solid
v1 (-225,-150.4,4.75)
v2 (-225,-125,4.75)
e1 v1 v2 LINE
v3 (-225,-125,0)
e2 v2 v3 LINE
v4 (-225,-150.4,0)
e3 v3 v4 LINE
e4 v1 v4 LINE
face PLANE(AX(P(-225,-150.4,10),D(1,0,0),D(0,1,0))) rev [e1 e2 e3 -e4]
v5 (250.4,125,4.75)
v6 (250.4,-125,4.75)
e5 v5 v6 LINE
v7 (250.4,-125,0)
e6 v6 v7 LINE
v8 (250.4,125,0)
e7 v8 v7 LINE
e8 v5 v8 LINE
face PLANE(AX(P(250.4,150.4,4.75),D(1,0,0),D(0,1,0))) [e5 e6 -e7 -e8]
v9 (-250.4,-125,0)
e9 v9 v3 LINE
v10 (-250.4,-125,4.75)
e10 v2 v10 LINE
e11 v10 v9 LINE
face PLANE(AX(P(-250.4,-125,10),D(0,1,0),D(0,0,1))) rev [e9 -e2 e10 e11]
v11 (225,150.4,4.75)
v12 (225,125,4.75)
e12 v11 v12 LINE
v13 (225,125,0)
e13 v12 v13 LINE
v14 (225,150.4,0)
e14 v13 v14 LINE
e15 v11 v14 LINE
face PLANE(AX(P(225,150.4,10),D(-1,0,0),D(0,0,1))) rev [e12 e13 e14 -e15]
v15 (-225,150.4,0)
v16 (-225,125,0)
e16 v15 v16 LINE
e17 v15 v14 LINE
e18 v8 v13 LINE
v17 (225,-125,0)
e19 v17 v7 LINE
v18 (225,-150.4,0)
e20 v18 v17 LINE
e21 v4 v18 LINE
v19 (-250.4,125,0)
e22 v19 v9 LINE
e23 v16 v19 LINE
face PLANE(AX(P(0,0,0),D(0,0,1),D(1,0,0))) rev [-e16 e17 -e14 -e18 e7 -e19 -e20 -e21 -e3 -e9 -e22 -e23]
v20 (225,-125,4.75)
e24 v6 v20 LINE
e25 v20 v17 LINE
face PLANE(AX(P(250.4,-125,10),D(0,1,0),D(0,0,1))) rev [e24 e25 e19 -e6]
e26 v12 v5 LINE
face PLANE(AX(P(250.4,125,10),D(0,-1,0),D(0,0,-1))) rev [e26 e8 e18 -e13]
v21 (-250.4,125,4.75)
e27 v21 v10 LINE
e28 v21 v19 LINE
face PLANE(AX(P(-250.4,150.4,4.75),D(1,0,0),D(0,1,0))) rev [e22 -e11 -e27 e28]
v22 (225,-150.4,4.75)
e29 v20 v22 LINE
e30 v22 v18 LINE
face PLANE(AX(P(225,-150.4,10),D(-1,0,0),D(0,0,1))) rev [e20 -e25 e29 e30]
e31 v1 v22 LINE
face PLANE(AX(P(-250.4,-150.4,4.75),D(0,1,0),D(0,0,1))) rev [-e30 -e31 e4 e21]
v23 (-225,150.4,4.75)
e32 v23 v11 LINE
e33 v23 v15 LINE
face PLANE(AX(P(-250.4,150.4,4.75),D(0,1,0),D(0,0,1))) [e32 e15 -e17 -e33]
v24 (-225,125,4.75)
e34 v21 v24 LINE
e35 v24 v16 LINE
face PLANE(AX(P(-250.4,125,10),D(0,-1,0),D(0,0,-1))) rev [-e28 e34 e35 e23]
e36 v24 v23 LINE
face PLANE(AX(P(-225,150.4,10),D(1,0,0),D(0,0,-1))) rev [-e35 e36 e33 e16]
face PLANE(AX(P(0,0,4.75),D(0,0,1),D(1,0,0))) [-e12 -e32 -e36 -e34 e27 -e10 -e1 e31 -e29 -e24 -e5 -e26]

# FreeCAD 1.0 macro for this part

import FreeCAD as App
import Part
import Sketcher

V = App.Vector


def add_polygon(sketch, points):
    """Adds a closed chain of lines whose ends are joined by coincident constraints."""
    first, n = sketch.GeometryCount, len(points)
    for a, b in zip(points, points[1:] + points[:1]):
        sketch.addGeometry(Part.LineSegment(App.Vector(*a, 0), App.Vector(*b, 0)), False)
    for i in range(n):
        sketch.addConstraint(Sketcher.Constraint("Coincident", first + i, 2, first + (i + 1) % n, 1))

doc = App.newDocument("Part")
body = doc.addObject("PartDesign::Body", "Body")

# Sketch on XY plane
sketch1 = doc.addObject("Sketcher::SketchObject", "Sketch")
body.addObject(sketch1)
sketch1.AttachmentSupport = (doc.XY_Plane, [""])
sketch1.MapMode = "FlatFace"
add_polygon(sketch1, [(-250.4, 150.4), (-250.4, -150.4), (250.4, -150.4), (250.4, 150.4)])  # lines 0-3
sketch1.addConstraint(Sketcher.Constraint("Vertical", 0))
sketch1.addConstraint(Sketcher.Constraint("Horizontal", 1))
sketch1.addConstraint(Sketcher.Constraint("Vertical", 2))
sketch1.addConstraint(Sketcher.Constraint("Horizontal", 3))
sketch1.addConstraint(Sketcher.Constraint("Symmetric", 0, 2, 2, 2, -1, 1))
sketch1.addConstraint(Sketcher.Constraint("DistanceX", 1, 1, 1, 2, 500.8))
sketch1.addConstraint(Sketcher.Constraint("DistanceY", 0, 2, 0, 1, 300.8))
pad1 = doc.addObject("PartDesign::Pad", "Pad")
body.addObject(pad1)
pad1.Profile = sketch1
pad1.Length = 4.75

# Sketch on XY plane
sketch2 = doc.addObject("Sketcher::SketchObject", "Sketch001")
body.addObject(sketch2)
sketch2.AttachmentSupport = (doc.XY_Plane, [""])
sketch2.MapMode = "FlatFace"
add_polygon(sketch2, [(250.4, 150.4), (250.4, 125), (225, 125), (225, 150.4)])  # lines 0-3
add_polygon(sketch2, [(250.4, -125), (250.4, -150.4), (225, -150.4), (225, -125)])  # lines 4-7
add_polygon(sketch2, [(-225, 150.4), (-225, 125), (-250.4, 125), (-250.4, 150.4)])  # lines 8-11
add_polygon(sketch2, [(-225, -125), (-225, -150.4), (-250.4, -150.4), (-250.4, -125)])  # lines 12-15
sketch2.addConstraint(Sketcher.Constraint("Vertical", 0))
sketch2.addConstraint(Sketcher.Constraint("Horizontal", 1))
sketch2.addConstraint(Sketcher.Constraint("Vertical", 2))
sketch2.addConstraint(Sketcher.Constraint("Horizontal", 3))
sketch2.addConstraint(Sketcher.Constraint("Vertical", 4))
sketch2.addConstraint(Sketcher.Constraint("Horizontal", 5))
sketch2.addConstraint(Sketcher.Constraint("Vertical", 6))
sketch2.addConstraint(Sketcher.Constraint("Horizontal", 7))
sketch2.addConstraint(Sketcher.Constraint("Vertical", 8))
sketch2.addConstraint(Sketcher.Constraint("Horizontal", 9))
sketch2.addConstraint(Sketcher.Constraint("Vertical", 10))
sketch2.addConstraint(Sketcher.Constraint("Horizontal", 11))
sketch2.addConstraint(Sketcher.Constraint("Vertical", 12))
sketch2.addConstraint(Sketcher.Constraint("Horizontal", 13))
sketch2.addConstraint(Sketcher.Constraint("Vertical", 14))
sketch2.addConstraint(Sketcher.Constraint("Horizontal", 15))
sketch2.addConstraint(Sketcher.Constraint("Symmetric", 6, 2, 8, 2, -1, 1))
sketch2.addConstraint(Sketcher.Constraint("Symmetric", 4, 2, 10, 2, -1, 1))
sketch2.addConstraint(Sketcher.Constraint("Symmetric", 2, 2, 12, 2, -1, 1))
sketch2.addConstraint(Sketcher.Constraint("Symmetric", 0, 2, 14, 2, -1, 1))
sketch2.addConstraint(Sketcher.Constraint("Symmetric", 1, 2, 8, 2, -2))
sketch2.addConstraint(Sketcher.Constraint("Symmetric", 3, 2, 10, 2, -2))
sketch2.addConstraint(Sketcher.Constraint("Equal", 15, 0))
sketch2.addConstraint(Sketcher.Constraint("DistanceX", 1, 2, 1, 1, 25.4))
sketch2.addConstraint(Sketcher.Constraint("DistanceY", -1, 1, 0, 2, 125.0))
sketch2.addConstraint(Sketcher.Constraint("DistanceX", -1, 1, 1, 2, 225.0))
pocket1 = doc.addObject("PartDesign::Pocket", "Pocket")
body.addObject(pocket1)
pocket1.Profile = sketch2
pocket1.Length = 10
pocket1.Reversed = True

doc.recompute()
